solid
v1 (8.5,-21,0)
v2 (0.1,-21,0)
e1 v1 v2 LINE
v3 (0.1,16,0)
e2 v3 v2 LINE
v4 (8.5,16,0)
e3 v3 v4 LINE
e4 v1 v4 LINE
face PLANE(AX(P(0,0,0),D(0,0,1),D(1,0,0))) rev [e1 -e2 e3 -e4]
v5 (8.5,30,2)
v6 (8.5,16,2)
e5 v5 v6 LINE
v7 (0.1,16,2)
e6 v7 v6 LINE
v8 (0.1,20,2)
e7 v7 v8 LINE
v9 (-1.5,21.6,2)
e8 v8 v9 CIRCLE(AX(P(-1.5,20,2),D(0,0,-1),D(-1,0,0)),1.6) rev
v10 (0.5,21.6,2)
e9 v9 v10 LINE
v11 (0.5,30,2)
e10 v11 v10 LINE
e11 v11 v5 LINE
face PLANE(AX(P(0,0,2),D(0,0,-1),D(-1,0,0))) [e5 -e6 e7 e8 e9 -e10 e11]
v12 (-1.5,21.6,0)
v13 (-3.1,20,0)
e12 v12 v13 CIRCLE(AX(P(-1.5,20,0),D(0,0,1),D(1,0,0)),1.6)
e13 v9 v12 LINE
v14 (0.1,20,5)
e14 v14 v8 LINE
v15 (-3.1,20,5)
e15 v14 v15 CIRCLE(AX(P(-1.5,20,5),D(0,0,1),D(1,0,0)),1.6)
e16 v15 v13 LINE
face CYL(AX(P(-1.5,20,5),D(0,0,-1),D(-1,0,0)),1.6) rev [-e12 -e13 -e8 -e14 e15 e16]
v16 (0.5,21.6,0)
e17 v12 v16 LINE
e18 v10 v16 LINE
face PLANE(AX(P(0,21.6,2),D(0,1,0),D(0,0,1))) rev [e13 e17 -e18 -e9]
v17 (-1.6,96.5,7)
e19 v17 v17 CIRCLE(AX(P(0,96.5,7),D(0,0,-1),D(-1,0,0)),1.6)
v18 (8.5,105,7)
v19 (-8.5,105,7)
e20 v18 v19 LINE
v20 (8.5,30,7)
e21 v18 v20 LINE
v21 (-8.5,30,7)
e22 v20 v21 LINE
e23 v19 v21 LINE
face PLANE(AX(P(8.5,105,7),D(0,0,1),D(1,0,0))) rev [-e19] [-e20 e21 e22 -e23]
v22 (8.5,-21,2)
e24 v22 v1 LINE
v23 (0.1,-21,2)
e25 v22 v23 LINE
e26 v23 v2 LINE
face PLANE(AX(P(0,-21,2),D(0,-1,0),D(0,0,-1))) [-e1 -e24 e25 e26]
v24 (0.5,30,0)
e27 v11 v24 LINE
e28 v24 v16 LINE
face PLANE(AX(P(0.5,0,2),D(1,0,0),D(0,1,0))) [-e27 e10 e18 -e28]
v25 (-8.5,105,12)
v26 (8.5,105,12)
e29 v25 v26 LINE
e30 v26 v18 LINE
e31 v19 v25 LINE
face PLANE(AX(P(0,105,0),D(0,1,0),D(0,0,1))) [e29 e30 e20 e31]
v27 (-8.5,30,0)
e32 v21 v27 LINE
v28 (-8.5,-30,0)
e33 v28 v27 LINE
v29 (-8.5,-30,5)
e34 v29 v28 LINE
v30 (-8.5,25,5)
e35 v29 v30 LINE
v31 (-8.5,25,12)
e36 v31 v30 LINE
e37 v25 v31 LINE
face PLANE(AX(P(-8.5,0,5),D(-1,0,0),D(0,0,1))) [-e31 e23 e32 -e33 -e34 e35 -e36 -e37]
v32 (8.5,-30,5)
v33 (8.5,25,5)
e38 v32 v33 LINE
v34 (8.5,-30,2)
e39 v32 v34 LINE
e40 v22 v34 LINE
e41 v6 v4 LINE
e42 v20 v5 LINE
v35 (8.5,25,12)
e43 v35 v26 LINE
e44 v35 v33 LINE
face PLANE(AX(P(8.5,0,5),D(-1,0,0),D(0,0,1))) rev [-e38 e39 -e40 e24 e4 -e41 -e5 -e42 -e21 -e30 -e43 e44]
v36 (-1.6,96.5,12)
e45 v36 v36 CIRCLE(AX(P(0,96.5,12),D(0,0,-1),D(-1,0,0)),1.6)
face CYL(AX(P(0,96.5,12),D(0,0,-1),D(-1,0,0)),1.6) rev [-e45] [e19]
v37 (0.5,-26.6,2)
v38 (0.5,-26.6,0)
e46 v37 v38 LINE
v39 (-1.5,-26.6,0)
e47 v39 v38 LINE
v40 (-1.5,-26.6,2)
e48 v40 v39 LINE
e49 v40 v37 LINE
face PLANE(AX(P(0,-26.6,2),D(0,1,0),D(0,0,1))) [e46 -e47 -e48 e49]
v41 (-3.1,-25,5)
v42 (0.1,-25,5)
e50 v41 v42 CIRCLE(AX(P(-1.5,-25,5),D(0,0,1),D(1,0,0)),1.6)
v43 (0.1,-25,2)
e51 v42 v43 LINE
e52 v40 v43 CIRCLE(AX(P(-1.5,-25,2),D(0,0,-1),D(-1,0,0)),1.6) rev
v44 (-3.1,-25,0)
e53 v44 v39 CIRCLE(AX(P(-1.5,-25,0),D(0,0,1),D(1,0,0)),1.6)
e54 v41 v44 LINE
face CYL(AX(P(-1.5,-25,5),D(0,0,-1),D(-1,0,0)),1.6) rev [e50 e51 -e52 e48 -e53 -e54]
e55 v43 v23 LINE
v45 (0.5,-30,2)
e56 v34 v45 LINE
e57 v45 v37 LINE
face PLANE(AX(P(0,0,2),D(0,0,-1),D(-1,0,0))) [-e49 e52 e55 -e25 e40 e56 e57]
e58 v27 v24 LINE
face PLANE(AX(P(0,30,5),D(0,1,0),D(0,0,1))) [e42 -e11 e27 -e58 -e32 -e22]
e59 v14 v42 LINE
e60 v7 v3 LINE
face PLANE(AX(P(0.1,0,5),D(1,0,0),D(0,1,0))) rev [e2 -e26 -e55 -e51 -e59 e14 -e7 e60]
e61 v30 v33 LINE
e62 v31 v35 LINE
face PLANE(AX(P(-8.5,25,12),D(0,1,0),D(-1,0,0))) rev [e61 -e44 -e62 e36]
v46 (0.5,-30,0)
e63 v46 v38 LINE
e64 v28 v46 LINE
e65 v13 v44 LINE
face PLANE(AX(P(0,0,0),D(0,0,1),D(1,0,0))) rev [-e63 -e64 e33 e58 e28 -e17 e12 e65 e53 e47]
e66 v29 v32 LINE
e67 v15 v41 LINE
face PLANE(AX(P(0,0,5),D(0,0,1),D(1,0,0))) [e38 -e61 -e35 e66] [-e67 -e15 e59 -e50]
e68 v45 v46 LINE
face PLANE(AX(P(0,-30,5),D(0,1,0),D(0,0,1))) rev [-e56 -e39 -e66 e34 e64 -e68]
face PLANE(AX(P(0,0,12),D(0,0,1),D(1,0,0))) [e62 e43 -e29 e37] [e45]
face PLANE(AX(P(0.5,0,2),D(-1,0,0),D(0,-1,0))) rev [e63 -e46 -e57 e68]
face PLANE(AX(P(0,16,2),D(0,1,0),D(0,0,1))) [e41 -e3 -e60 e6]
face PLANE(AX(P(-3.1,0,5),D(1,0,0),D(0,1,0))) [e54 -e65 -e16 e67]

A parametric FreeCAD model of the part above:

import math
import FreeCAD as App
import Part
import Sketcher

V = App.Vector
Q = App.Units.Quantity

doc = App.newDocument("Part")
body = doc.addObject("PartDesign::Body", "Body")

sketch1 = body.newObject("Sketcher::SketchObject", "Sketch")
sketch1.AttachmentSupport = (doc.getObject("XY_Plane"), [""])
sketch1.MapMode = "FlatFace"
sketch1.addGeometry([
    Part.LineSegment(V(-8.5, 30, 0), V(-8.5, -30, 0)),
    Part.LineSegment(V(-8.5, -30, 0), V(8.5, -30, 0)),
    Part.LineSegment(V(8.5, -30, 0), V(8.5, 30, 0)),
    Part.LineSegment(V(8.5, 30, 0), V(-8.5, 30, 0)),
    Part.ArcOfCircle(Part.Circle(V(-1.5, 20, 0), V(0, 0, 1), 1.6), math.radians(0), math.radians(180)),
    Part.LineSegment(V(0.1, 20, 0), V(0.1, -25, 0)),
    Part.ArcOfCircle(Part.Circle(V(-1.5, -25, 0), V(0, 0, 1), 1.6), math.radians(180), math.radians(360)),
    Part.LineSegment(V(-3.1, -25, 0), V(-3.1, 20, 0)),
], False)
sketch1.addConstraint([
    Sketcher.Constraint("Coincident", 0, 2, 1, 1),
    Sketcher.Constraint("Coincident", 1, 2, 2, 1),
    Sketcher.Constraint("Coincident", 2, 2, 3, 1),
    Sketcher.Constraint("Coincident", 3, 2, 0, 1),
    Sketcher.Constraint("Tangent", 4, 1, 5, 1),
    Sketcher.Constraint("Tangent", 5, 2, 6, 2),
    Sketcher.Constraint("Tangent", 6, 1, 7, 1),
    Sketcher.Constraint("Tangent", 7, 2, 4, 2),
    Sketcher.Constraint("Vertical", 0),
    Sketcher.Constraint("Horizontal", 1),
    Sketcher.Constraint("Vertical", 2),
    Sketcher.Constraint("Horizontal", 3),
    Sketcher.Constraint("Vertical", 5),
    Sketcher.Constraint("Vertical", 7),
    Sketcher.Constraint("Symmetric", 0, 2, 2, 2, -1, 1),
    Sketcher.Constraint("Radius", 4, Q("1.6 mm")),
    Sketcher.Constraint("DistanceX", 1, 1, 1, 2, Q("17 mm")),
    Sketcher.Constraint("DistanceY", 0, 2, 0, 1, Q("60 mm")),
    Sketcher.Constraint("DistanceY", 5, 2, 5, 1, Q("45 mm")),
    Sketcher.Constraint("DistanceY", -1, 1, 4, 3, Q("20 mm")),
    Sketcher.Constraint("DistanceX", 0, 2, 6, 3, Q("7 mm")),
])
pad1 = body.newObject("PartDesign::Pad", "Pad")
pad1.Profile = sketch1
pad1.Length = 5

sketch2 = body.newObject("Sketcher::SketchObject", "Sketch001")
sketch2.AttachmentSupport = (doc.getObject("XY_Plane"), [""])
sketch2.MapMode = "FlatFace"
sketch2.AttachmentOffset = App.Placement(V(0, 0, 5), App.Rotation())
sketch2.addGeometry([
    Part.LineSegment(V(-8, 30, 0), V(-8, 25, 0)),
    Part.LineSegment(V(-8, 25, 0), V(8, 25, 0)),
    Part.LineSegment(V(8, 25, 0), V(8, 30, 0)),
    Part.LineSegment(V(8, 30, 0), V(-8, 30, 0)),
], False)
sketch2.addConstraint([
    Sketcher.Constraint("Coincident", 0, 2, 1, 1),
    Sketcher.Constraint("Coincident", 1, 2, 2, 1),
    Sketcher.Constraint("Coincident", 2, 2, 3, 1),
    Sketcher.Constraint("Coincident", 3, 2, 0, 1),
    Sketcher.Constraint("Vertical", 0),
    Sketcher.Constraint("Horizontal", 1),
    Sketcher.Constraint("Vertical", 2),
    Sketcher.Constraint("Horizontal", 3),
    Sketcher.Constraint("DistanceX", 1, 1, 1, 2, Q("17 mm")),
    Sketcher.Constraint("DistanceY", 0, 2, 0, 1, Q("5 mm")),
    Sketcher.Constraint("DistanceY", -1, 1, 0, 2, Q("25 mm")),
    Sketcher.Constraint("DistanceX", 0, 2, -1, 1, Q("8.5 mm")),
])
pad2 = body.newObject("PartDesign::Pad", "Pad001")
pad2.Profile = sketch2
pad2.Length = 7

sketch3 = body.newObject("Sketcher::SketchObject", "Sketch002")
sketch3.AttachmentSupport = (doc.getObject("XZ_Plane"), [""])
sketch3.MapMode = "FlatFace"
sketch3.AttachmentOffset = App.Placement(V(0, 0, -30), App.Rotation())
sketch3.addGeometry([
    Part.LineSegment(V(-8, 7, 0), V(-8, 12, 0)),
    Part.LineSegment(V(-8, 12, 0), V(8, 12, 0)),
    Part.LineSegment(V(8, 12, 0), V(8, 7, 0)),
    Part.LineSegment(V(8, 7, 0), V(-8, 7, 0)),
], False)
sketch3.addConstraint([
    Sketcher.Constraint("Coincident", 0, 2, 1, 1),
    Sketcher.Constraint("Coincident", 1, 2, 2, 1),
    Sketcher.Constraint("Coincident", 2, 2, 3, 1),
    Sketcher.Constraint("Coincident", 3, 2, 0, 1),
    Sketcher.Constraint("Vertical", 0),
    Sketcher.Constraint("Horizontal", 1),
    Sketcher.Constraint("Vertical", 2),
    Sketcher.Constraint("Horizontal", 3),
    Sketcher.Constraint("DistanceX", 1, 1, 1, 2, Q("17 mm")),
    Sketcher.Constraint("DistanceY", 0, 1, 0, 2, Q("5 mm")),
    Sketcher.Constraint("DistanceY", -1, 1, 0, 2, Q("12 mm")),
    Sketcher.Constraint("DistanceX", 0, 2, -1, 1, Q("8.5 mm")),
])
pad3 = body.newObject("PartDesign::Pad", "Pad002")
pad3.Profile = sketch3
pad3.Length = 75
pad3.Reversed = True

sketch4 = body.newObject("Sketcher::SketchObject", "Sketch003")
sketch4.AttachmentSupport = (doc.getObject("XY_Plane"), [""])
sketch4.MapMode = "FlatFace"
sketch4.AttachmentOffset = App.Placement(V(0, 0, 7), App.Rotation())
sketch4.addGeometry(Part.Circle(V(0, 96.5, 0), V(0, 0, 1), 1.6), False)
sketch4.addConstraint([
    Sketcher.Constraint("PointOnObject", 0, 3, -2),
    Sketcher.Constraint("Diameter", 0, Q("3.2 mm")),
    Sketcher.Constraint("DistanceY", -1, 1, 0, 3, Q("96.5 mm")),
])
pocket1 = body.newObject("PartDesign::Pocket", "Pocket")
pocket1.Profile = sketch4
pocket1.Type = "ThroughAll"
pocket1.Reversed = True

sketch5 = body.newObject("Sketcher::SketchObject", "Sketch004")
sketch5.AttachmentSupport = (doc.getObject("XY_Plane"), [""])
sketch5.MapMode = "FlatFace"
sketch5.addGeometry([
    Part.LineSegment(V(0.5, 30, 0), V(8.5, 30, 0)),
    Part.LineSegment(V(8.5, 30, 0), V(8.5, 16, 0)),
    Part.LineSegment(V(8.5, 16, 0), V(0.1, 16, 0)),
    Part.LineSegment(V(0.1, 16, 0), V(0.1, 20, 0)),
    Part.ArcOfCircle(Part.Circle(V(-1.5, 20, 0), V(0, 0, 1), 1.6), math.radians(0), math.radians(90)),
    Part.LineSegment(V(-1.5, 21.6, 0), V(0.5, 21.6, 0)),
    Part.LineSegment(V(0.5, 21.6, 0), V(0.5, 30, 0)),
    Part.LineSegment(V(8.5, -21, 0), V(8.5, -30, 0)),
    Part.LineSegment(V(8.5, -30, 0), V(0.5, -30, 0)),
    Part.LineSegment(V(0.5, -30, 0), V(0.5, -26.6, 0)),
    Part.LineSegment(V(0.5, -26.6, 0), V(-1.5, -26.6, 0)),
    Part.ArcOfCircle(Part.Circle(V(-1.5, -25, 0), V(0, 0, 1), 1.6), math.radians(-90), math.radians(0)),
    Part.LineSegment(V(0.1, -25, 0), V(0.1, -21, 0)),
    Part.LineSegment(V(0.1, -21, 0), V(8.5, -21, 0)),
], False)
sketch5.addConstraint([
    Sketcher.Constraint("Coincident", 0, 2, 1, 1),
    Sketcher.Constraint("Coincident", 1, 2, 2, 1),
    Sketcher.Constraint("Coincident", 2, 2, 3, 1),
    Sketcher.Constraint("Tangent", 3, 2, 4, 1),
    Sketcher.Constraint("Tangent", 4, 2, 5, 1),
    Sketcher.Constraint("Coincident", 5, 2, 6, 1),
    Sketcher.Constraint("Coincident", 6, 2, 0, 1),
    Sketcher.Constraint("Coincident", 7, 2, 8, 1),
    Sketcher.Constraint("Coincident", 8, 2, 9, 1),
    Sketcher.Constraint("Coincident", 9, 2, 10, 1),
    Sketcher.Constraint("Tangent", 10, 2, 11, 1),
    Sketcher.Constraint("Tangent", 11, 2, 12, 1),
    Sketcher.Constraint("Coincident", 12, 2, 13, 1),
    Sketcher.Constraint("Coincident", 13, 2, 7, 1),
    Sketcher.Constraint("Horizontal", 0),
    Sketcher.Constraint("Vertical", 1),
    Sketcher.Constraint("Horizontal", 2),
    Sketcher.Constraint("Vertical", 3),
    Sketcher.Constraint("Horizontal", 5),
    Sketcher.Constraint("Vertical", 6),
    Sketcher.Constraint("Vertical", 7),
    Sketcher.Constraint("Horizontal", 8),
    Sketcher.Constraint("Vertical", 9),
    Sketcher.Constraint("Horizontal", 10),
    Sketcher.Constraint("Vertical", 12),
    Sketcher.Constraint("Horizontal", 13),
    Sketcher.Constraint("Equal", 4, 11),
    Sketcher.Constraint("Symmetric", 0, 2, 7, 2, -1),
    Sketcher.Constraint("Vertical", 4, 3, 11, 3),
    Sketcher.Constraint("Vertical", 6, 2, 8, 2),
    Sketcher.Constraint("Equal", 13, 6),
    Sketcher.Constraint("Equal", 3, 12),
    Sketcher.Constraint("Radius", 4, Q("1.6 mm")),
    Sketcher.Constraint("DistanceX", 0, 1, 0, 2, Q("8 mm")),
    Sketcher.Constraint("DistanceX", 5, 1, 5, 2, Q("2 mm")),
    Sketcher.Constraint("DistanceY", 1, 2, 1, 1, Q("14 mm")),
    Sketcher.Constraint("DistanceY", 7, 2, 7, 1, Q("9 mm")),
    Sketcher.Constraint("DistanceY", -1, 1, 4, 3, Q("20 mm")),
    Sketcher.Constraint("DistanceX", 4, 3, -1, 1, Q("1.5 mm")),
])
pocket2 = body.newObject("PartDesign::Pocket", "Pocket001")
pocket2.Profile = sketch5
pocket2.Length = 2
pocket2.Reversed = True

doc.recompute()
